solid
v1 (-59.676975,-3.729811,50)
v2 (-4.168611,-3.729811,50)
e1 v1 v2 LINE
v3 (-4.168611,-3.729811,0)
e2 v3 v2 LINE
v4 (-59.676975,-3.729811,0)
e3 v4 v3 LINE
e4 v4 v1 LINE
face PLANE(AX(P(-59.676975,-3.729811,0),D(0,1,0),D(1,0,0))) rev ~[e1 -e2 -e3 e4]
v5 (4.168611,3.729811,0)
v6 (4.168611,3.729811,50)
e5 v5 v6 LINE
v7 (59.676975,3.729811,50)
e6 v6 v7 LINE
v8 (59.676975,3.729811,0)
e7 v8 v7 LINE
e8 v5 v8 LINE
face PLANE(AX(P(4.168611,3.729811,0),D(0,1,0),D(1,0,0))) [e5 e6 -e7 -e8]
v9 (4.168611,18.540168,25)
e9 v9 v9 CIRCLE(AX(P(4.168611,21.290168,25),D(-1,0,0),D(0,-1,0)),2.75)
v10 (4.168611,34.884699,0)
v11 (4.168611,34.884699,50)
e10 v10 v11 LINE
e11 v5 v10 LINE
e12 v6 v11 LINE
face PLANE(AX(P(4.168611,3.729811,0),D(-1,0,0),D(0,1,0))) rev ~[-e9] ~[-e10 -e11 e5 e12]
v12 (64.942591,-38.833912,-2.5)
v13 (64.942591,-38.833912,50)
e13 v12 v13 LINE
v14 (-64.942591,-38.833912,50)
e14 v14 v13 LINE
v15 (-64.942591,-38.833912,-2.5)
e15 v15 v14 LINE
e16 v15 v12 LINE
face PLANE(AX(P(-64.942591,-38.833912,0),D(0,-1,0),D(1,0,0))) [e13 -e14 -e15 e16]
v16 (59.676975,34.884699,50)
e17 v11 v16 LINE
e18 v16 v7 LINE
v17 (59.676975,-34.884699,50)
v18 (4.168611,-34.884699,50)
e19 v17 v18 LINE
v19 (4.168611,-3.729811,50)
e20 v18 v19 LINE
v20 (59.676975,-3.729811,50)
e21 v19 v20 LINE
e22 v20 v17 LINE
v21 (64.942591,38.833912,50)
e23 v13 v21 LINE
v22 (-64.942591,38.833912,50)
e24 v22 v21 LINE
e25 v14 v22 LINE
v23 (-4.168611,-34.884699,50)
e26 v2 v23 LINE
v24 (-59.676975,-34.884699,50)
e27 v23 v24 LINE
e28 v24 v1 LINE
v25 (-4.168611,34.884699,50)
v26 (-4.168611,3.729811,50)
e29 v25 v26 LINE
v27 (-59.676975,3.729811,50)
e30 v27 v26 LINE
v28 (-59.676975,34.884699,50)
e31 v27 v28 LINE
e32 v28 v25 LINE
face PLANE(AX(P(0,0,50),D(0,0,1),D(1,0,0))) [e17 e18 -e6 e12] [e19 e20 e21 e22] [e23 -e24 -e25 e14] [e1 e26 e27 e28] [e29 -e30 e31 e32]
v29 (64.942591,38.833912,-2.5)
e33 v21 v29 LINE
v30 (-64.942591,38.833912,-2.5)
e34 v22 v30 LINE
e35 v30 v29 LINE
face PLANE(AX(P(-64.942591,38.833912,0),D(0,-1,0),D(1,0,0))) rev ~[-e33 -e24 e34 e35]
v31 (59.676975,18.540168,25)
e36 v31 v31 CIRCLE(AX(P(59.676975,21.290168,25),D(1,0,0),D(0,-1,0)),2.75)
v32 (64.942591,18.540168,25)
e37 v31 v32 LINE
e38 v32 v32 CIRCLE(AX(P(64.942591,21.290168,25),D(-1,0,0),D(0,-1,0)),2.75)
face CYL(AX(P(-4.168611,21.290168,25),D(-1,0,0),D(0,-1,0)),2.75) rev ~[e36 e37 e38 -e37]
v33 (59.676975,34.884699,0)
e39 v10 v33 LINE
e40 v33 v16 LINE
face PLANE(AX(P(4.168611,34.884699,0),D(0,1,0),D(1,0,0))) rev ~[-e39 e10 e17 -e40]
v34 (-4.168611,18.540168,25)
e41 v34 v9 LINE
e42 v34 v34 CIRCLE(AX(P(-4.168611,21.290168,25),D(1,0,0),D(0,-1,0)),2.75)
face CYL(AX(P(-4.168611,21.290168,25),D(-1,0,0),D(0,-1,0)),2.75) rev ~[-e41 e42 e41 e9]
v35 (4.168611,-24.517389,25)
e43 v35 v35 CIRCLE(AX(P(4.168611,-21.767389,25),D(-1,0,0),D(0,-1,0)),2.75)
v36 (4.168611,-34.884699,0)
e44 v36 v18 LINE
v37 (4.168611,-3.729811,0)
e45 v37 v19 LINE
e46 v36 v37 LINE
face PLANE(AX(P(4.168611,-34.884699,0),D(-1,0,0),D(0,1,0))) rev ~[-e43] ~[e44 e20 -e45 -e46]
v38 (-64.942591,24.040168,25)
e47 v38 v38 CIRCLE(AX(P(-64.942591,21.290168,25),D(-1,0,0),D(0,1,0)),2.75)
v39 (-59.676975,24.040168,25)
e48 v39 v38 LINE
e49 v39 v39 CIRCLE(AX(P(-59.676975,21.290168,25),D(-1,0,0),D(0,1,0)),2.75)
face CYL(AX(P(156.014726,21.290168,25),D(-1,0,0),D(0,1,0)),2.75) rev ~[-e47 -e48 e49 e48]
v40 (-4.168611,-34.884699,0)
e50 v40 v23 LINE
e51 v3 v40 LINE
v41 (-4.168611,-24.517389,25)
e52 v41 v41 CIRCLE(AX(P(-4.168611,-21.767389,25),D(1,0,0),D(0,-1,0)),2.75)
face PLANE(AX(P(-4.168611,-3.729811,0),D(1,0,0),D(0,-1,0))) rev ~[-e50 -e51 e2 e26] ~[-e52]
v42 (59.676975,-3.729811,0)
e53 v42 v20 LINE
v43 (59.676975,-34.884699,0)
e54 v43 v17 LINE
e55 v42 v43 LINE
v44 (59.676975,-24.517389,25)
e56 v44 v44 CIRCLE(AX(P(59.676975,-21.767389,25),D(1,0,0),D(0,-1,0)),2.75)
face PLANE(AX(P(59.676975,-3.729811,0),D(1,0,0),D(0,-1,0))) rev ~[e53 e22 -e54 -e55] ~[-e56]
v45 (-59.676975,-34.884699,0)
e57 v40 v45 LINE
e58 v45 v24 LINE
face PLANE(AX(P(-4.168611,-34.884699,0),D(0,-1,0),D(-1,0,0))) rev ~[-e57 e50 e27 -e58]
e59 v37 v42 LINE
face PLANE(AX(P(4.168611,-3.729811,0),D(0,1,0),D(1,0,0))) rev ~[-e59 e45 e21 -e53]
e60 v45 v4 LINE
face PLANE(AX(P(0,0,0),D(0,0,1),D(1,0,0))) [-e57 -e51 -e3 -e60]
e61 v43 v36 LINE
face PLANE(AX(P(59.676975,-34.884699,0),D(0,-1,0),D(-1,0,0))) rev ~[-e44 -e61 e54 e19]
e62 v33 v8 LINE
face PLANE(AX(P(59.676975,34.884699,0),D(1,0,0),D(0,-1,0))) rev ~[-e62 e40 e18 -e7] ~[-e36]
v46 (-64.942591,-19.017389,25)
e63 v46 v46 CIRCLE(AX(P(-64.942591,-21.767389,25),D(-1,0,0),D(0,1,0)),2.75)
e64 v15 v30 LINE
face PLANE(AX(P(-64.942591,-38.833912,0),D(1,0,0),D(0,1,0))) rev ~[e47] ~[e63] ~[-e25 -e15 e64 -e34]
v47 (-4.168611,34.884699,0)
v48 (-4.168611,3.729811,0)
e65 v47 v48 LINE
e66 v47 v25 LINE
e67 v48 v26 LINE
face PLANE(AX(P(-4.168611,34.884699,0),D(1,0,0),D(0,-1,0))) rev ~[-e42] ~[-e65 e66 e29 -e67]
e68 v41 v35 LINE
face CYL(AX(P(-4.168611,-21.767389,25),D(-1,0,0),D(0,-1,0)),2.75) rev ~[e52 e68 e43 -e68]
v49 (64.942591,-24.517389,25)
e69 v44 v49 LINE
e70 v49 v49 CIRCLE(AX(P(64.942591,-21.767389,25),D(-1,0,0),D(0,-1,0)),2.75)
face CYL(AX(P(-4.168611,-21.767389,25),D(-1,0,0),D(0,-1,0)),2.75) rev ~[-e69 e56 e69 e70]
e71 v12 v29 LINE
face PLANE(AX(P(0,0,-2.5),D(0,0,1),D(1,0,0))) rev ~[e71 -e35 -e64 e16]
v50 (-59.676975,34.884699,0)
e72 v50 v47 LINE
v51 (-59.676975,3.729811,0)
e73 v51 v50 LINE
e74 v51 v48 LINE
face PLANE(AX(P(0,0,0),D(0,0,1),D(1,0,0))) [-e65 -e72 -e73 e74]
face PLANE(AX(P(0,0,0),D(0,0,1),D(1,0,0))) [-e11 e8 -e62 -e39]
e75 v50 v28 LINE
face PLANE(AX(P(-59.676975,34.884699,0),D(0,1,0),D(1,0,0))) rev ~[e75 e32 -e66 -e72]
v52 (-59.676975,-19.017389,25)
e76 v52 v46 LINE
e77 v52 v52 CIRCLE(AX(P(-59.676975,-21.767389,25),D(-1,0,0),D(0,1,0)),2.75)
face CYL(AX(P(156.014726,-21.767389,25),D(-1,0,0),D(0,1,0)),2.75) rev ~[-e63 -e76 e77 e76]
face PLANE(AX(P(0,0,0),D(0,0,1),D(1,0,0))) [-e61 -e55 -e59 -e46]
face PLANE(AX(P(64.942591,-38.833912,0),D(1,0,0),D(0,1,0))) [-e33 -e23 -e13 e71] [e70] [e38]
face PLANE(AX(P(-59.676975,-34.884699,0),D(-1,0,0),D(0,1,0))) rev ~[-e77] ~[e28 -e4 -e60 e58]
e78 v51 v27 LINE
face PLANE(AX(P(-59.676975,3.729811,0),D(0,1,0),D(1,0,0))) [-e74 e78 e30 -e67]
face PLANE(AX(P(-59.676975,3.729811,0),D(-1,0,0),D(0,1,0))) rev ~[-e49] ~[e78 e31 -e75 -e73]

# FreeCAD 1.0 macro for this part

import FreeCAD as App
import Part
import Sketcher
from FreeCAD import Vector
Q = App.Units.Quantity

doc = App.newDocument("Part")
body = doc.addObject("PartDesign::Body", "Body")

# Sketch on XY plane
sketch1 = doc.addObject("Sketcher::SketchObject", "Sketch")
body.addObject(sketch1)
sketch1.AttachmentSupport = (doc.XY_Plane, [""])
sketch1.MapMode = "FlatFace"
sketch1.addGeometry([
    Part.LineSegment(Vector(-64.942591, 38.833912, 0), Vector(-64.942591, -38.833912, 0)),  # 0
    Part.LineSegment(Vector(-64.942591, -38.833912, 0), Vector(64.942591, -38.833912, 0)),  # 1
    Part.LineSegment(Vector(64.942591, -38.833912, 0), Vector(64.942591, 38.833912, 0)),  # 2
    Part.LineSegment(Vector(64.942591, 38.833912, 0), Vector(-64.942591, 38.833912, 0)),  # 3
    Part.LineSegment(Vector(-59.676975, -34.884699, 0), Vector(-59.676975, -3.729811, 0)),  # 4
    Part.LineSegment(Vector(-59.676975, -3.729811, 0), Vector(-4.168611, -3.729811, 0)),  # 5
    Part.LineSegment(Vector(-4.168611, -3.729811, 0), Vector(-4.168611, -34.884699, 0)),  # 6
    Part.LineSegment(Vector(-4.168611, -34.884699, 0), Vector(-59.676975, -34.884699, 0)),  # 7
    Part.LineSegment(Vector(-4.168611, 3.729811, 0), Vector(-59.676975, 3.729811, 0)),  # 8
    Part.LineSegment(Vector(-59.676975, 3.729811, 0), Vector(-59.676975, 34.884699, 0)),  # 9
    Part.LineSegment(Vector(-59.676975, 34.884699, 0), Vector(-4.168611, 34.884699, 0)),  # 10
    Part.LineSegment(Vector(-4.168611, 34.884699, 0), Vector(-4.168611, 3.729811, 0)),  # 11
    Part.LineSegment(Vector(4.168611, 34.884699, 0), Vector(59.676975, 34.884699, 0)),  # 12
    Part.LineSegment(Vector(59.676975, 34.884699, 0), Vector(59.676975, 3.729811, 0)),  # 13
    Part.LineSegment(Vector(59.676975, 3.729811, 0), Vector(4.168611, 3.729811, 0)),  # 14
    Part.LineSegment(Vector(4.168611, 3.729811, 0), Vector(4.168611, 34.884699, 0)),  # 15
    Part.LineSegment(Vector(4.168611, -3.729811, 0), Vector(59.676975, -3.729811, 0)),  # 16
    Part.LineSegment(Vector(59.676975, -3.729811, 0), Vector(59.676975, -34.884699, 0)),  # 17
    Part.LineSegment(Vector(59.676975, -34.884699, 0), Vector(4.168611, -34.884699, 0)),  # 18
    Part.LineSegment(Vector(4.168611, -34.884699, 0), Vector(4.168611, -3.729811, 0)),  # 19
], False)
sketch1.addConstraint([
    Sketcher.Constraint("Coincident", 0, 2, 1, 1),
    Sketcher.Constraint("Coincident", 1, 2, 2, 1),
    Sketcher.Constraint("Coincident", 2, 2, 3, 1),
    Sketcher.Constraint("Coincident", 3, 2, 0, 1),
    Sketcher.Constraint("Coincident", 4, 2, 5, 1),
    Sketcher.Constraint("Coincident", 5, 2, 6, 1),
    Sketcher.Constraint("Coincident", 6, 2, 7, 1),
    Sketcher.Constraint("Coincident", 7, 2, 4, 1),
    Sketcher.Constraint("Coincident", 8, 2, 9, 1),
    Sketcher.Constraint("Coincident", 9, 2, 10, 1),
    Sketcher.Constraint("Coincident", 10, 2, 11, 1),
    Sketcher.Constraint("Coincident", 11, 2, 8, 1),
    Sketcher.Constraint("Coincident", 12, 2, 13, 1),
    Sketcher.Constraint("Coincident", 13, 2, 14, 1),
    Sketcher.Constraint("Coincident", 14, 2, 15, 1),
    Sketcher.Constraint("Coincident", 15, 2, 12, 1),
    Sketcher.Constraint("Coincident", 16, 2, 17, 1),
    Sketcher.Constraint("Coincident", 17, 2, 18, 1),
    Sketcher.Constraint("Coincident", 18, 2, 19, 1),
    Sketcher.Constraint("Coincident", 19, 2, 16, 1),
    Sketcher.Constraint("Vertical", 0),
    Sketcher.Constraint("Horizontal", 1),
    Sketcher.Constraint("Vertical", 2),
    Sketcher.Constraint("Horizontal", 3),
    Sketcher.Constraint("Vertical", 4),
    Sketcher.Constraint("Horizontal", 5),
    Sketcher.Constraint("Vertical", 6),
    Sketcher.Constraint("Horizontal", 7),
    Sketcher.Constraint("Horizontal", 8),
    Sketcher.Constraint("Vertical", 9),
    Sketcher.Constraint("Horizontal", 10),
    Sketcher.Constraint("Vertical", 11),
    Sketcher.Constraint("Horizontal", 12),
    Sketcher.Constraint("Vertical", 13),
    Sketcher.Constraint("Horizontal", 14),
    Sketcher.Constraint("Vertical", 15),
    Sketcher.Constraint("Horizontal", 16),
    Sketcher.Constraint("Vertical", 17),
    Sketcher.Constraint("Horizontal", 18),
    Sketcher.Constraint("Vertical", 19),
    Sketcher.Constraint("Symmetric", 0, 2, 2, 2, -1, 1),
    Sketcher.Constraint("Symmetric", 7, 2, 12, 2, -1, 1),
    Sketcher.Constraint("Symmetric", 5, 2, 14, 2, -1, 1),
    Sketcher.Constraint("Symmetric", 8, 2, 16, 2, -1, 1),
    Sketcher.Constraint("Symmetric", 10, 2, 18, 2, -1, 1),
    Sketcher.Constraint("Symmetric", 9, 2, 12, 2, -2),
    Sketcher.Constraint("Symmetric", 11, 2, 14, 2, -2),
    Sketcher.Constraint("DistanceX", 1, 1, 1, 2, Q("129.885182 mm")),
    Sketcher.Constraint("DistanceY", 6, 2, -1, 1, Q("34.884699 mm")),
    Sketcher.Constraint("DistanceY", 0, 2, 4, 2, Q("35.104102 mm")),
    Sketcher.Constraint("DistanceX", 5, 1, 5, 2, Q("55.508364 mm")),
    Sketcher.Constraint("DistanceY", 0, 2, 0, 1, Q("77.667825 mm")),
    Sketcher.Constraint("DistanceX", 5, 2, -1, 1, Q("4.168611 mm")),
])
pad1 = doc.addObject("PartDesign::Pad", "Pad")
body.addObject(pad1)
pad1.Profile = sketch1
pad1.Length = 50

# Sketch on XY plane
sketch2 = doc.addObject("Sketcher::SketchObject", "Sketch001")
body.addObject(sketch2)
sketch2.AttachmentSupport = (doc.XY_Plane, [""])
sketch2.MapMode = "FlatFace"
sketch2.addGeometry([
    Part.LineSegment(Vector(-64.942591, 38.833912, 0), Vector(-64.942591, -38.833912, 0)),
    Part.LineSegment(Vector(-64.942591, -38.833912, 0), Vector(64.942591, -38.833912, 0)),
    Part.LineSegment(Vector(64.942591, -38.833912, 0), Vector(64.942591, 38.833912, 0)),
    Part.LineSegment(Vector(64.942591, 38.833912, 0), Vector(-64.942591, 38.833912, 0)),
], False)
sketch2.addConstraint([
    Sketcher.Constraint("Coincident", 0, 2, 1, 1),
    Sketcher.Constraint("Coincident", 1, 2, 2, 1),
    Sketcher.Constraint("Coincident", 2, 2, 3, 1),
    Sketcher.Constraint("Coincident", 3, 2, 0, 1),
    Sketcher.Constraint("Vertical", 0),
    Sketcher.Constraint("Horizontal", 1),
    Sketcher.Constraint("Vertical", 2),
    Sketcher.Constraint("Horizontal", 3),
    Sketcher.Constraint("Symmetric", 0, 2, 2, 2, -1, 1),
    Sketcher.Constraint("DistanceX", 1, 1, 1, 2, Q("129.885182 mm")),
    Sketcher.Constraint("DistanceY", 0, 2, 0, 1, Q("77.667825 mm")),
])
pad2 = doc.addObject("PartDesign::Pad", "Pad001")
body.addObject(pad2)
pad2.Profile = sketch2
pad2.Length = 2.5
pad2.Reversed = True

# Sketch on YZ plane
sketch3 = doc.addObject("Sketcher::SketchObject", "Sketch002")
body.addObject(sketch3)
sketch3.AttachmentSupport = (doc.YZ_Plane, [""])
sketch3.MapMode = "FlatFace"
sketch3.AttachmentOffset = App.Placement(Vector(0, 0, -4.168611), App.Rotation())
sketch3.addGeometry([
    Part.Circle(Vector(21.290168, 25, 0), Vector(0, 0, 1), 2.75),
    Part.Circle(Vector(-21.767389, 25, 0), Vector(0, 0, 1), 2.75),
], False)
sketch3.addConstraint([
    Sketcher.Constraint("Equal", 0, 1),
    Sketcher.Constraint("Horizontal", 0, 3, 1, 3),
    Sketcher.Constraint("Diameter", 0, Q("5.5 mm")),
    Sketcher.Constraint("DistanceY", -1, 1, 0, 3, Q("25 mm")),
    Sketcher.Constraint("DistanceX", -1, 1, 0, 3, Q("21.290168 mm")),
    Sketcher.Constraint("DistanceX", 1, 3, -1, 1, Q("21.767389 mm")),
])
pocket1 = doc.addObject("PartDesign::Pocket", "Pocket")
body.addObject(pocket1)
pocket1.Profile = sketch3
pocket1.Type = "ThroughAll"
pocket1.Reversed = True

# Sketch on YZ plane
sketch4 = doc.addObject("Sketcher::SketchObject", "Sketch003")
body.addObject(sketch4)
sketch4.AttachmentSupport = (doc.YZ_Plane, [""])
sketch4.MapMode = "FlatFace"
sketch4.AttachmentOffset = App.Placement(Vector(0, 0, -4.168611), App.Rotation())
sketch4.addGeometry([
    Part.Circle(Vector(21.290168, 25, 0), Vector(0, 0, 1), 2.75),
    Part.Circle(Vector(-21.767389, 25, 0), Vector(0, 0, 1), 2.75),
], False)
sketch4.addConstraint([
    Sketcher.Constraint("Equal", 0, 1),
    Sketcher.Constraint("Horizontal", 0, 3, 1, 3),
    Sketcher.Constraint("Diameter", 0, Q("5.5 mm")),
    Sketcher.Constraint("DistanceY", -1, 1, 0, 3, Q("25 mm")),
    Sketcher.Constraint("DistanceX", -1, 1, 0, 3, Q("21.290168 mm")),
    Sketcher.Constraint("DistanceX", 1, 3, -1, 1, Q("21.767389 mm")),
])
doc.recompute()
hole = doc.addObject("PartDesign::Hole", "Hole")
body.addObject(hole)
hole.Profile = sketch4
hole.ThreadType = "None"
hole.Diameter = 5.5
hole.DepthType = "ThroughAll"

doc.recompute()
